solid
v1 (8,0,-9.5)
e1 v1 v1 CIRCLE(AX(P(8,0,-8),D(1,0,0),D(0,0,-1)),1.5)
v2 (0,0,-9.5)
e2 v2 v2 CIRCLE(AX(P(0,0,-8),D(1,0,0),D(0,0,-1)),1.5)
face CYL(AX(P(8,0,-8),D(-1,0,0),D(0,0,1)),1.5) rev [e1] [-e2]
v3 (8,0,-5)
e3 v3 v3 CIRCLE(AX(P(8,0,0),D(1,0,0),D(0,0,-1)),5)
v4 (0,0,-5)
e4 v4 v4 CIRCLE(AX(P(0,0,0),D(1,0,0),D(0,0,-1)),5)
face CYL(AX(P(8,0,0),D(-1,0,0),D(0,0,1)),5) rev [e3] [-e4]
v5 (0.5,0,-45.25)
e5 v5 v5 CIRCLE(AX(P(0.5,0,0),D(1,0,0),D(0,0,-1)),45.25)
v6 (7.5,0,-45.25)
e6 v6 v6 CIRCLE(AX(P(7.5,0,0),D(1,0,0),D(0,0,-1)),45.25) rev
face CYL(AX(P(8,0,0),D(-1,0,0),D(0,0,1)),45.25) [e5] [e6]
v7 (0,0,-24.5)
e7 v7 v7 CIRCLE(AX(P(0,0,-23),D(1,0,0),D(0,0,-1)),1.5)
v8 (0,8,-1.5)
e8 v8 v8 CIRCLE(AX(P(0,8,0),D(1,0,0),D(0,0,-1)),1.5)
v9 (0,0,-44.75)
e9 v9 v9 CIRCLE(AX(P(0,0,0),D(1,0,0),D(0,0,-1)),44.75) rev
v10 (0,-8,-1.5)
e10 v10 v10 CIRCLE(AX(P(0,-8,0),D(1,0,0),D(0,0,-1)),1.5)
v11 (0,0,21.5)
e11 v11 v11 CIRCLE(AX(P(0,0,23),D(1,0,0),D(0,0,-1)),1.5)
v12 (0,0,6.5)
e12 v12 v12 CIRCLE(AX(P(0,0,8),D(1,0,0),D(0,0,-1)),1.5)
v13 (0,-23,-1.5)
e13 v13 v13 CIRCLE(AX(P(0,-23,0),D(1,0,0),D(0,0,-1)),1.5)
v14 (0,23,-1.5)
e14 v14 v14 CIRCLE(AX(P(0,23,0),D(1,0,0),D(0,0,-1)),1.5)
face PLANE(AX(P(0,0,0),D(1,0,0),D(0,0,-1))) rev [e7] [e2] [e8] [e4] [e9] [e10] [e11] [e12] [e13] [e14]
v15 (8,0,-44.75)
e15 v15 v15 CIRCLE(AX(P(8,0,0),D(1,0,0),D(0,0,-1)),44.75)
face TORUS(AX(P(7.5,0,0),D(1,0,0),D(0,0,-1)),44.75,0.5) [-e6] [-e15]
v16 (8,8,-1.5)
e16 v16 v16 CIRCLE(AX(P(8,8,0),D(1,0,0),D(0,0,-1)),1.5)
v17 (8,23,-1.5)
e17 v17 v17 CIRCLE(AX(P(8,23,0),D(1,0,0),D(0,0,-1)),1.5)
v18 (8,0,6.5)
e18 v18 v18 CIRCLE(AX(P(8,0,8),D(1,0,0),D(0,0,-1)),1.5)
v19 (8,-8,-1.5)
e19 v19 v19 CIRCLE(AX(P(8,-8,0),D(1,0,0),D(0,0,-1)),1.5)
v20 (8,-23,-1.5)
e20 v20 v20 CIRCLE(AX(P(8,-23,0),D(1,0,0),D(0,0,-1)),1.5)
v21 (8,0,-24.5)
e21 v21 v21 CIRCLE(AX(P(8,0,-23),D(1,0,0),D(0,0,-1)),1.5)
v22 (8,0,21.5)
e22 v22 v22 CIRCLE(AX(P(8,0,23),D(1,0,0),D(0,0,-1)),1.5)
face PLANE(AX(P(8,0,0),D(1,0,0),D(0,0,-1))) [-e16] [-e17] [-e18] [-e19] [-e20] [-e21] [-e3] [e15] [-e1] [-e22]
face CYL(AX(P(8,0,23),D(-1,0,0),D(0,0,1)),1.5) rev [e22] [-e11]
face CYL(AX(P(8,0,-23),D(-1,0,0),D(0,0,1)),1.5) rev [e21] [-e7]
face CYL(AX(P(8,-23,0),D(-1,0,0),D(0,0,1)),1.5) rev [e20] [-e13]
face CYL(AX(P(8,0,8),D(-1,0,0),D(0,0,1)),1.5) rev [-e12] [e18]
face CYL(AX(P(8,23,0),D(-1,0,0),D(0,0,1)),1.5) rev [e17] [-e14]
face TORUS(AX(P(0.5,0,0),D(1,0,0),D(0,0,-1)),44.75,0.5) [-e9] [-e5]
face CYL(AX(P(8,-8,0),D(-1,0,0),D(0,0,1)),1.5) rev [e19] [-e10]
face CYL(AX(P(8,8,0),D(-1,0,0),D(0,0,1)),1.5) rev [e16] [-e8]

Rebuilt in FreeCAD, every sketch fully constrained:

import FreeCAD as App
import Part
import Sketcher


def edges_at(feature, points):
    """Names of the edges that pass closest to the given points."""
    edges = feature.Shape.Edges
    near = lambda p: min(range(len(edges)), key=lambda i: edges[i].distToShape(Part.Vertex(*p))[0])
    return sorted({f"Edge{near(p) + 1}" for p in points})

doc = App.newDocument("Part")
body = doc.addObject("PartDesign::Body", "Body")

sketch1 = body.newObject("Sketcher::SketchObject", "Sketch")
sketch1.AttachmentSupport = (doc.getObject("YZ_Plane"), [""])
sketch1.MapMode = "FlatFace"
sketch1.addGeometry(Part.Circle(App.Vector(0, 0, 0), App.Vector(0, 0, 1), 45), False)
sketch1.addConstraint([
    Sketcher.Constraint("Coincident", 0, 3, -1, 1),
    Sketcher.Constraint("Diameter", 0, 90.5),
])
pad1 = body.newObject("PartDesign::Pad", "Pad")
pad1.Profile = sketch1
pad1.Length = 8

sketch2 = body.newObject("Sketcher::SketchObject", "Sketch001")
sketch2.AttachmentSupport = (doc.getObject("YZ_Plane"), [""])
sketch2.MapMode = "FlatFace"
sketch2.addGeometry([
    Part.Circle(App.Vector(0, 0, 0), App.Vector(0, 0, 1), 5),
    Part.Circle(App.Vector(23, 0, 0), App.Vector(0, 0, 1), 1.5),
    Part.Circle(App.Vector(0, -8, 0), App.Vector(0, 0, 1), 1.5),
    Part.Circle(App.Vector(8, 0, 0), App.Vector(0, 0, 1), 1.5),
    Part.Circle(App.Vector(0, -23, 0), App.Vector(0, 0, 1), 1.5),
    Part.Circle(App.Vector(-8, 0, 0), App.Vector(0, 0, 1), 1.5),
    Part.Circle(App.Vector(-23, 0, 0), App.Vector(0, 0, 1), 1.5),
    Part.Circle(App.Vector(0, 8, 0), App.Vector(0, 0, 1), 1.5),
    Part.Circle(App.Vector(0, 23, 0), App.Vector(0, 0, 1), 1.5),
], False)
sketch2.addConstraint([
    Sketcher.Constraint("Coincident", 0, 3, -1, 1),
    Sketcher.Constraint("Equal", 1, 2),
    Sketcher.Constraint("Equal", 2, 3),
    Sketcher.Constraint("Equal", 3, 4),
    Sketcher.Constraint("Equal", 4, 5),
    Sketcher.Constraint("Equal", 5, 6),
    Sketcher.Constraint("Equal", 6, 7),
    Sketcher.Constraint("Equal", 7, 8),
    Sketcher.Constraint("Symmetric", 3, 3, 5, 3, -1, 1),
    Sketcher.Constraint("Symmetric", 1, 3, 6, 3, -1, 1),
    Sketcher.Constraint("Symmetric", 2, 3, 7, 3, -1, 1),
    Sketcher.Constraint("Symmetric", 4, 3, 8, 3, -1, 1),
    Sketcher.Constraint("PointOnObject", 1, 3, -1),
    Sketcher.Constraint("PointOnObject", 2, 3, -2),
    Sketcher.Constraint("PointOnObject", 3, 3, -1),
    Sketcher.Constraint("PointOnObject", 4, 3, -2),
    Sketcher.Constraint("Diameter", 0, 10.0),
    Sketcher.Constraint("Diameter", 1, 3.0),
    Sketcher.Constraint("DistanceX", -1, 1, 1, 3, 23.0),
    Sketcher.Constraint("DistanceY", 2, 3, -1, 1, 8.0),
    Sketcher.Constraint("DistanceX", -1, 1, 3, 3, 8.0),
    Sketcher.Constraint("DistanceY", 4, 3, -1, 1, 23.0),
])
pocket1 = body.newObject("PartDesign::Pocket", "Pocket")
pocket1.Profile = sketch2
pocket1.Type = "ThroughAll"
pocket1.Reversed = True
doc.recompute()

fillet = body.newObject("PartDesign::Fillet", "Fillet")
fillet.Base = (pocket1, edges_at(pocket1, [(0, 0, 45.25), (8, 0, 45.25)]))
fillet.Radius = 0.5

doc.recompute()
